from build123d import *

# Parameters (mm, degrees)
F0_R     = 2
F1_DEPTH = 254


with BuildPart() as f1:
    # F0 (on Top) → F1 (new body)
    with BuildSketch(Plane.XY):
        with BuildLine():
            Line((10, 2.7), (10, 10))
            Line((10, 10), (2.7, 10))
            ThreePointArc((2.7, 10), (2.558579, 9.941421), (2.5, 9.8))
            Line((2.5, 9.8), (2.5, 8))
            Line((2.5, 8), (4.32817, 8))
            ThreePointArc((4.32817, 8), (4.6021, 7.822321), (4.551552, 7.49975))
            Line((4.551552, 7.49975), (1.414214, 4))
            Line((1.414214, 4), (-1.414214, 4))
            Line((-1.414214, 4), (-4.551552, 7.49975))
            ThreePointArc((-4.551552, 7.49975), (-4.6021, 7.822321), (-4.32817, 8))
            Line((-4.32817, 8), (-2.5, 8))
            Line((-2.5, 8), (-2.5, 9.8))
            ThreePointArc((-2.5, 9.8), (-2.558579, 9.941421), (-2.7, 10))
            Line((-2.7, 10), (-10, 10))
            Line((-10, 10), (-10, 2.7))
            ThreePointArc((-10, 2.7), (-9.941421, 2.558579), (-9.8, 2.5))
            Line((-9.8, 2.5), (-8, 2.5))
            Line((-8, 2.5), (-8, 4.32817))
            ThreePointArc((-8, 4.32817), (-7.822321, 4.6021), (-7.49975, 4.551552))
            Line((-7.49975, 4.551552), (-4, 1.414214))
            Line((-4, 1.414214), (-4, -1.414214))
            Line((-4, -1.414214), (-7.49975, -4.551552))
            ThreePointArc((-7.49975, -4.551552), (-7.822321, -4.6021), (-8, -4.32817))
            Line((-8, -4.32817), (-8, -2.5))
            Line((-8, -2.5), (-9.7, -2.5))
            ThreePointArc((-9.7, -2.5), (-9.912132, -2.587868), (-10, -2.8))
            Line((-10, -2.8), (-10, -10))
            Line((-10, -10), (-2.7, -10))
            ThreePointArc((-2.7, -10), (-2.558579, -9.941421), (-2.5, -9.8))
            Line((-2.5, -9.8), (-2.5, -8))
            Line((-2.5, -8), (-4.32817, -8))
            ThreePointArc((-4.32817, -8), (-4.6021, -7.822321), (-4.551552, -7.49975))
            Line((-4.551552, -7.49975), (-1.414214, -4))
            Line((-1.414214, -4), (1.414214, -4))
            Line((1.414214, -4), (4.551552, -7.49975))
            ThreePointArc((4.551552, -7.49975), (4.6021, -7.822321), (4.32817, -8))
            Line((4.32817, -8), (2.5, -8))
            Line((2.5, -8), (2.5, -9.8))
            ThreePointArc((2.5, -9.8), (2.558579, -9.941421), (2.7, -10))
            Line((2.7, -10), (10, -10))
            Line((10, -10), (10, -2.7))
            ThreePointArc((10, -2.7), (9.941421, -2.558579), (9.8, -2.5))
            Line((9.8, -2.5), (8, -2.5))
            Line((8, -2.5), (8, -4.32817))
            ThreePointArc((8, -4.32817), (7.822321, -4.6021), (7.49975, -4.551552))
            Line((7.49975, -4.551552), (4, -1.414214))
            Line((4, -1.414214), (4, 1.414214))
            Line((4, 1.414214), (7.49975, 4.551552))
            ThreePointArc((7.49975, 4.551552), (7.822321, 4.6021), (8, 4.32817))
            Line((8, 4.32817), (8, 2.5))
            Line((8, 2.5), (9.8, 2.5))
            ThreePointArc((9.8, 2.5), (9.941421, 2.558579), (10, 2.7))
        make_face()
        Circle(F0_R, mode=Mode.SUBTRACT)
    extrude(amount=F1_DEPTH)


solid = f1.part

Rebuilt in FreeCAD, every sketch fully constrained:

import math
import FreeCAD as App
import Part
import Sketcher
from FreeCAD import Vector

doc = App.newDocument("Part")
body = doc.addObject("PartDesign::Body", "Body")

# Sketch on XY plane
sketch1 = body.newObject("Sketcher::SketchObject", "Sketch")
sketch1.AttachmentSupport = (doc.getObject("XY_Plane"), [""])
sketch1.MapMode = "FlatFace"
sketch1.addGeometry([
    Part.LineSegment(Vector(10, 2.7, 0), Vector(10, 10, 0)),  # 0
    Part.LineSegment(Vector(10, 10, 0), Vector(2.7, 10, 0)),  # 1
    Part.ArcOfCircle(Part.Circle(Vector(2.7, 9.8, 0), Vector(0, 0, 1), 0.2), math.radians(90), math.radians(180)),  # 2
    Part.LineSegment(Vector(2.5, 9.8, 0), Vector(2.5, 8, 0)),  # 3
    Part.LineSegment(Vector(2.5, 8, 0), Vector(4.33, 8, 0)),  # 4
    Part.ArcOfCircle(Part.Circle(Vector(4.33, 7.7, 0), Vector(0, 0, 1), 0.3), math.radians(-42), math.radians(90)),  # 5
    Part.LineSegment(Vector(4.55, 7.5, 0), Vector(1.41, 4, 0)),  # 6
    Part.LineSegment(Vector(1.41, 4, 0), Vector(-1.41, 4, 0)),  # 7
    Part.LineSegment(Vector(-1.41, 4, 0), Vector(-4.55, 7.5, 0)),  # 8
    Part.ArcOfCircle(Part.Circle(Vector(-4.33, 7.7, 0), Vector(0, 0, 1), 0.3), math.radians(90), math.radians(222)),  # 9
    Part.LineSegment(Vector(-4.33, 8, 0), Vector(-2.5, 8, 0)),  # 10
    Part.LineSegment(Vector(-2.5, 8, 0), Vector(-2.5, 9.8, 0)),  # 11
    Part.ArcOfCircle(Part.Circle(Vector(-2.7, 9.8, 0), Vector(0, 0, 1), 0.2), math.radians(0), math.radians(90)),  # 12
    Part.LineSegment(Vector(-2.7, 10, 0), Vector(-10, 10, 0)),  # 13
    Part.LineSegment(Vector(-10, 10, 0), Vector(-10, 2.7, 0)),  # 14
    Part.ArcOfCircle(Part.Circle(Vector(-9.8, 2.7, 0), Vector(0, 0, 1), 0.2), math.radians(-180), math.radians(-90)),  # 15
    Part.LineSegment(Vector(-9.8, 2.5, 0), Vector(-8, 2.5, 0)),  # 16
    Part.LineSegment(Vector(-8, 2.5, 0), Vector(-8, 4.33, 0)),  # 17
    Part.ArcOfCircle(Part.Circle(Vector(-7.7, 4.33, 0), Vector(0, 0, 1), 0.3), math.radians(48), math.radians(180)),  # 18
    Part.LineSegment(Vector(-7.5, 4.55, 0), Vector(-4, 1.41, 0)),  # 19
    Part.LineSegment(Vector(-4, 1.41, 0), Vector(-4, -1.41, 0)),  # 20
    Part.LineSegment(Vector(-4, -1.41, 0), Vector(-7.5, -4.55, 0)),  # 21
    Part.ArcOfCircle(Part.Circle(Vector(-7.7, -4.33, 0), Vector(0, 0, 1), 0.3), math.radians(180), math.radians(312)),  # 22
    Part.LineSegment(Vector(-8, -4.33, 0), Vector(-8, -2.5, 0)),  # 23
    Part.LineSegment(Vector(-8, -2.5, 0), Vector(-9.7, -2.5, 0)),  # 24
    Part.ArcOfCircle(Part.Circle(Vector(-9.7, -2.8, 0), Vector(0, 0, 1), 0.3), math.radians(90), math.radians(180)),  # 25
    Part.LineSegment(Vector(-10, -2.8, 0), Vector(-10, -10, 0)),  # 26
    Part.LineSegment(Vector(-10, -10, 0), Vector(-2.7, -10, 0)),  # 27
    Part.ArcOfCircle(Part.Circle(Vector(-2.7, -9.8, 0), Vector(0, 0, 1), 0.2), math.radians(-90), math.radians(0)),  # 28
    Part.LineSegment(Vector(-2.5, -9.8, 0), Vector(-2.5, -8, 0)),  # 29
    Part.LineSegment(Vector(-2.5, -8, 0), Vector(-4.33, -8, 0)),  # 30
    Part.ArcOfCircle(Part.Circle(Vector(-4.33, -7.7, 0), Vector(0, 0, 1), 0.3), math.radians(138), math.radians(270)),  # 31
    Part.LineSegment(Vector(-4.55, -7.5, 0), Vector(-1.41, -4, 0)),  # 32
    Part.LineSegment(Vector(-1.41, -4, 0), Vector(1.41, -4, 0)),  # 33
    Part.LineSegment(Vector(1.41, -4, 0), Vector(4.55, -7.5, 0)),  # 34
    Part.ArcOfCircle(Part.Circle(Vector(4.33, -7.7, 0), Vector(0, 0, 1), 0.3), math.radians(-90), math.radians(42)),  # 35
    Part.LineSegment(Vector(4.33, -8, 0), Vector(2.5, -8, 0)),  # 36
    Part.LineSegment(Vector(2.5, -8, 0), Vector(2.5, -9.8, 0)),  # 37
    Part.ArcOfCircle(Part.Circle(Vector(2.7, -9.8, 0), Vector(0, 0, 1), 0.2), math.radians(-180), math.radians(-90)),  # 38
    Part.LineSegment(Vector(2.7, -10, 0), Vector(10, -10, 0)),  # 39
    Part.LineSegment(Vector(10, -10, 0), Vector(10, -2.7, 0)),  # 40
    Part.ArcOfCircle(Part.Circle(Vector(9.8, -2.7, 0), Vector(0, 0, 1), 0.2), math.radians(0), math.radians(90)),  # 41
    Part.LineSegment(Vector(9.8, -2.5, 0), Vector(8, -2.5, 0)),  # 42
    Part.LineSegment(Vector(8, -2.5, 0), Vector(8, -4.33, 0)),  # 43
    Part.ArcOfCircle(Part.Circle(Vector(7.7, -4.33, 0), Vector(0, 0, 1), 0.3), math.radians(-132), math.radians(0)),  # 44
    Part.LineSegment(Vector(7.5, -4.55, 0), Vector(4, -1.41, 0)),  # 45
    Part.LineSegment(Vector(4, -1.41, 0), Vector(4, 1.41, 0)),  # 46
    Part.LineSegment(Vector(4, 1.41, 0), Vector(7.5, 4.55, 0)),  # 47
    Part.ArcOfCircle(Part.Circle(Vector(7.7, 4.33, 0), Vector(0, 0, 1), 0.3), math.radians(0), math.radians(132)),  # 48
    Part.LineSegment(Vector(8, 4.33, 0), Vector(8, 2.5, 0)),  # 49
    Part.LineSegment(Vector(8, 2.5, 0), Vector(9.8, 2.5, 0)),  # 50
    Part.ArcOfCircle(Part.Circle(Vector(9.8, 2.7, 0), Vector(0, 0, 1), 0.2), math.radians(-90), math.radians(0)),  # 51
    Part.Circle(Vector(0, 0, 0), Vector(0, 0, 1), 2),  # 52
], False)
sketch1.addConstraint([
    Sketcher.Constraint("Coincident", 0, 2, 1, 1),
    Sketcher.Constraint("Coincident", 1, 2, 2, 1),
    Sketcher.Constraint("Coincident", 2, 2, 3, 1),
    Sketcher.Constraint("Coincident", 3, 2, 4, 1),
    Sketcher.Constraint("Tangent", 4, 2, 5, 2),
    Sketcher.Constraint("Coincident", 5, 1, 6, 1),
    Sketcher.Constraint("Coincident", 6, 2, 7, 1),
    Sketcher.Constraint("Coincident", 7, 2, 8, 1),
    Sketcher.Constraint("Coincident", 8, 2, 9, 2),
    Sketcher.Constraint("Tangent", 9, 1, 10, 1),
    Sketcher.Constraint("Coincident", 10, 2, 11, 1),
    Sketcher.Constraint("Coincident", 11, 2, 12, 1),
    Sketcher.Constraint("Coincident", 12, 2, 13, 1),
    Sketcher.Constraint("Coincident", 13, 2, 14, 1),
    Sketcher.Constraint("Coincident", 14, 2, 15, 1),
    Sketcher.Constraint("Coincident", 15, 2, 16, 1),
    Sketcher.Constraint("Coincident", 16, 2, 17, 1),
    Sketcher.Constraint("Tangent", 17, 2, 18, 2),
    Sketcher.Constraint("Coincident", 18, 1, 19, 1),
    Sketcher.Constraint("Coincident", 19, 2, 20, 1),
    Sketcher.Constraint("Coincident", 20, 2, 21, 1),
    Sketcher.Constraint("Coincident", 21, 2, 22, 2),
    Sketcher.Constraint("Tangent", 22, 1, 23, 1),
    Sketcher.Constraint("Coincident", 23, 2, 24, 1),
    Sketcher.Constraint("Tangent", 24, 2, 25, 1),
    Sketcher.Constraint("Tangent", 25, 2, 26, 1),
    Sketcher.Constraint("Coincident", 26, 2, 27, 1),
    Sketcher.Constraint("Coincident", 27, 2, 28, 1),
    Sketcher.Constraint("Coincident", 28, 2, 29, 1),
    Sketcher.Constraint("Coincident", 29, 2, 30, 1),
    Sketcher.Constraint("Tangent", 30, 2, 31, 2),
    Sketcher.Constraint("Coincident", 31, 1, 32, 1),
    Sketcher.Constraint("Coincident", 32, 2, 33, 1),
    Sketcher.Constraint("Coincident", 33, 2, 34, 1),
    Sketcher.Constraint("Coincident", 34, 2, 35, 2),
    Sketcher.Constraint("Tangent", 35, 1, 36, 1),
    Sketcher.Constraint("Coincident", 36, 2, 37, 1),
    Sketcher.Constraint("Coincident", 37, 2, 38, 1),
    Sketcher.Constraint("Coincident", 38, 2, 39, 1),
    Sketcher.Constraint("Coincident", 39, 2, 40, 1),
    Sketcher.Constraint("Coincident", 40, 2, 41, 1),
    Sketcher.Constraint("Coincident", 41, 2, 42, 1),
    Sketcher.Constraint("Coincident", 42, 2, 43, 1),
    Sketcher.Constraint("Tangent", 43, 2, 44, 2),
    Sketcher.Constraint("Coincident", 44, 1, 45, 1),
    Sketcher.Constraint("Coincident", 45, 2, 46, 1),
    Sketcher.Constraint("Coincident", 46, 2, 47, 1),
    Sketcher.Constraint("Coincident", 47, 2, 48, 2),
    Sketcher.Constraint("Tangent", 48, 1, 49, 1),
    Sketcher.Constraint("Coincident", 49, 2, 50, 1),
    Sketcher.Constraint("Coincident", 50, 2, 51, 1),
    Sketcher.Constraint("Coincident", 51, 2, 0, 1),
    Sketcher.Constraint("Vertical", 0),
    Sketcher.Constraint("Horizontal", 1),
    Sketcher.Constraint("Vertical", 3),
    Sketcher.Constraint("Horizontal", 4),
    Sketcher.Constraint("Horizontal", 7),
    Sketcher.Constraint("Horizontal", 10),
    Sketcher.Constraint("Vertical", 11),
    Sketcher.Constraint("Horizontal", 13),
    Sketcher.Constraint("Vertical", 14),
    Sketcher.Constraint("Horizontal", 16),
    Sketcher.Constraint("Vertical", 17),
    Sketcher.Constraint("Vertical", 20),
    Sketcher.Constraint("Vertical", 23),
    Sketcher.Constraint("Horizontal", 24),
    Sketcher.Constraint("Vertical", 26),
    Sketcher.Constraint("Horizontal", 27),
    Sketcher.Constraint("Vertical", 29),
    Sketcher.Constraint("Horizontal", 30),
    Sketcher.Constraint("Horizontal", 33),
    Sketcher.Constraint("Horizontal", 36),
    Sketcher.Constraint("Vertical", 37),
    Sketcher.Constraint("Horizontal", 39),
    Sketcher.Constraint("Vertical", 40),
    Sketcher.Constraint("Horizontal", 42),
    Sketcher.Constraint("Vertical", 43),
    Sketcher.Constraint("Vertical", 46),
    Sketcher.Constraint("Vertical", 49),
    Sketcher.Constraint("Horizontal", 50),
    Sketcher.Constraint("Coincident", 52, 3, -1, 1),
    Sketcher.Constraint("Equal", 5, 9),
    Sketcher.Constraint("Equal", 2, 12),
    Sketcher.Constraint("Equal", 12, 15),
    Sketcher.Constraint("Equal", 9, 18),
    Sketcher.Constraint("Equal", 18, 22),
    Sketcher.Constraint("Equal", 22, 25),
    Sketcher.Constraint("Equal", 15, 28),
    Sketcher.Constraint("Equal", 25, 31),
    Sketcher.Constraint("Equal", 31, 35),
    Sketcher.Constraint("Equal", 28, 38),
    Sketcher.Constraint("Equal", 38, 41),
    Sketcher.Constraint("Equal", 35, 44),
    Sketcher.Constraint("Equal", 44, 48),
    Sketcher.Constraint("Equal", 41, 51),
    Sketcher.Constraint("Symmetric", 2, 3, 28, 3, -1, 1),
    Sketcher.Constraint("Symmetric", 5, 3, 31, 3, -1, 1),
    Sketcher.Constraint("Symmetric", 9, 3, 35, 3, -1, 1),
    Sketcher.Constraint("Symmetric", 12, 3, 38, 3, -1, 1),
    Sketcher.Constraint("Symmetric", 15, 3, 41, 3, -1, 1),
    Sketcher.Constraint("Symmetric", 18, 3, 44, 3, -1, 1),
    Sketcher.Constraint("Symmetric", 22, 3, 48, 3, -1, 1),
    Sketcher.Constraint("Symmetric", 6, 2, 32, 2, -1, 1),
    Sketcher.Constraint("Symmetric", 19, 2, 45, 2, -1, 1),
    Sketcher.Constraint("Symmetric", 5, 3, 9, 3, -2),
    Sketcher.Constraint("Symmetric", 2, 3, 12, 3, -2),
    Sketcher.Constraint("Symmetric", 22, 3, 44, 3, -2),
    Sketcher.Constraint("Symmetric", 15, 3, 51, 3, -2),
    Sketcher.Constraint("Perpendicular", 6, 19),
    Sketcher.Constraint("Perpendicular", 8, 21),
    Sketcher.Constraint("Perpendicular", 21, 34),
    Sketcher.Constraint("Perpendicular", 34, 47),
    Sketcher.Constraint("Horizontal", 12, 3, 2, 2),
    Sketcher.Constraint("Horizontal", 5, 1, 8, 2),
    Sketcher.Constraint("Horizontal", 2, 2, 11, 2),
    Sketcher.Constraint("Horizontal", 51, 3, 14, 2),
    Sketcher.Constraint("Horizontal", 38, 3, 28, 2),
    Sketcher.Constraint("Horizontal", 31, 1, 34, 2),
    Sketcher.Constraint("Horizontal", 28, 2, 37, 2),
    Sketcher.Constraint("Horizontal", 41, 3, 40, 2),
    Sketcher.Constraint("Horizontal", 24, 2, 41, 2),
    Sketcher.Constraint("Horizontal", 21, 2, 44, 1),
    Sketcher.Constraint("Horizontal", 20, 2, 45, 2),
    Sketcher.Constraint("Horizontal", 18, 1, 47, 2),
    Sketcher.Constraint("Horizontal", 14, 2, 51, 2),
    Sketcher.Constraint("Vertical", 38, 3, 1, 2),
    Sketcher.Constraint("Vertical", 28, 3, 12, 2),
    Sketcher.Constraint("Vertical", 18, 1, 21, 2),
    Sketcher.Constraint("Vertical", 14, 2, 25, 2),
    Sketcher.Constraint("Vertical", 12, 2, 27, 2),
    Sketcher.Constraint("Vertical", 8, 2, 31, 1),
    Sketcher.Constraint("Vertical", 1, 2, 38, 2),
    Sketcher.Constraint("Vertical", 51, 3, 41, 2),
    Sketcher.Constraint("Vertical", 41, 2, 50, 2),
    Sketcher.Constraint("Equal", 16, 42),
    Sketcher.Constraint("Equal", 39, 0),
    Sketcher.Constraint("Equal", 50, 3),
    Sketcher.Constraint("Equal", 36, 17),
    Sketcher.Constraint("Equal", 33, 20),
    Sketcher.Constraint("Equal", 8, 19),
    Sketcher.Constraint("Diameter", 52, 4.0),
    Sketcher.Constraint("Radius", 2, 0.200001),
    Sketcher.Constraint("Radius", 5, 0.299999),
    Sketcher.Constraint("DistanceX", 1, 2, 1, 1, 7.3),
    Sketcher.Constraint("DistanceX", 16, 1, 16, 2, 1.8),
    Sketcher.Constraint("DistanceX", -1, 1, 0, 2, 10.0),
    Sketcher.Constraint("DistanceY", -1, 1, 0, 2, 10.0),
    Sketcher.Constraint("DistanceY", -1, 1, 6, 2, 4.0),
    Sketcher.Constraint("DistanceX", 4, 1, 4, 2, 1.82817),
    Sketcher.Constraint("DistanceX", 7, 2, 7, 1, 2.828428),
    Sketcher.Constraint("Distance", 6, 4.700121),
])
pad1 = body.newObject("PartDesign::Pad", "Pad")
pad1.Profile = sketch1
pad1.Length = 254

doc.recompute()
